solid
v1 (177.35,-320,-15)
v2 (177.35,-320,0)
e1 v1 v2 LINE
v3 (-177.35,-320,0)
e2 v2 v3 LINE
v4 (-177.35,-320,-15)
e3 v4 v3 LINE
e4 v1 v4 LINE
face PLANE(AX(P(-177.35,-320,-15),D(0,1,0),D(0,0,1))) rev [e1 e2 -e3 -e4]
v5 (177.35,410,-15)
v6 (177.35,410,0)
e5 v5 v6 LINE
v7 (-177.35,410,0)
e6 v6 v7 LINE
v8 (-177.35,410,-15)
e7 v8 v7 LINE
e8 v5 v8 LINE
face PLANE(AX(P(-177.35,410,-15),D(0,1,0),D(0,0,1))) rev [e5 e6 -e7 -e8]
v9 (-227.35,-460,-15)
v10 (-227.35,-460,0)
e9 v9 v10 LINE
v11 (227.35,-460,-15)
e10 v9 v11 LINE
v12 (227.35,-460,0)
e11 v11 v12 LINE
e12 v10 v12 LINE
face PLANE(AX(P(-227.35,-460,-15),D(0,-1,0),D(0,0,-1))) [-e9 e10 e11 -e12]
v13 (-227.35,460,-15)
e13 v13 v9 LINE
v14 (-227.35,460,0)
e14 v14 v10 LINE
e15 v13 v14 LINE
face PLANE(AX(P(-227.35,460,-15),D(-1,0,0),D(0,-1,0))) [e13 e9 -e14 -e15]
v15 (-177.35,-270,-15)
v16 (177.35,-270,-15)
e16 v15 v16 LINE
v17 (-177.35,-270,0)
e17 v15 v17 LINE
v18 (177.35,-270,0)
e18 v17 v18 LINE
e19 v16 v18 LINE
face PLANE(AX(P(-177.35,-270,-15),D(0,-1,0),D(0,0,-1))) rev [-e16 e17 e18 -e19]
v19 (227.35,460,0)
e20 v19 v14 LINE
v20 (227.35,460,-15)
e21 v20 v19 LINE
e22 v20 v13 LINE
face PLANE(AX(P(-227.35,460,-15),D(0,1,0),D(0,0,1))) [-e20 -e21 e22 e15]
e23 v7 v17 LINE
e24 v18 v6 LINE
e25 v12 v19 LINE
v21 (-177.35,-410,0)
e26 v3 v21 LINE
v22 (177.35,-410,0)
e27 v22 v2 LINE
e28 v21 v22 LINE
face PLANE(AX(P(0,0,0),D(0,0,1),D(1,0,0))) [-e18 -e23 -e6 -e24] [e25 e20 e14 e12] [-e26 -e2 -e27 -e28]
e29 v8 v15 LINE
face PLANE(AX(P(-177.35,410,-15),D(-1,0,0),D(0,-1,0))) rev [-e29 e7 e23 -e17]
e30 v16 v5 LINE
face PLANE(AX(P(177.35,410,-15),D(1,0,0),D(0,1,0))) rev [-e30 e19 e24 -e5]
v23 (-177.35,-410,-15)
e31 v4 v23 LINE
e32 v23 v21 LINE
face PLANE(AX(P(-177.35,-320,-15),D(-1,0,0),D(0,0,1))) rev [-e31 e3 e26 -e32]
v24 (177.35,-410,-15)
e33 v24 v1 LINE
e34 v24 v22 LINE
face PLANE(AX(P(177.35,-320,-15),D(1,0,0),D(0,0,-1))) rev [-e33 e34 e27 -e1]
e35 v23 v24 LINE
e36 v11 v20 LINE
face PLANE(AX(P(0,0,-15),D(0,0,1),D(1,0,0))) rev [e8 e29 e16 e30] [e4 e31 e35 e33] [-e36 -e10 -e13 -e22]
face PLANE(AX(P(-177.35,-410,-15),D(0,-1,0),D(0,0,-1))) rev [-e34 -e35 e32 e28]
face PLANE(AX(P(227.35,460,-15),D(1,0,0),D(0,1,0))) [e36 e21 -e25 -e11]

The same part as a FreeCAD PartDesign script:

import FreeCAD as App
import Part
import Sketcher

V = App.Vector
Q = App.Units.Quantity

doc = App.newDocument("Part")
body = doc.addObject("PartDesign::Body", "Body")

# Sketch on XY plane
sketch1 = body.newObject("Sketcher::SketchObject", "Sketch")
sketch1.AttachmentSupport = (doc.getObject("XY_Plane"), [""])
sketch1.MapMode = "FlatFace"
sketch1.addGeometry(Part.LineSegment(V(-227, 460, 0), V(-227, -460, 0)), False)
sketch1.addGeometry(Part.LineSegment(V(-227, -460, 0), V(227, -460, 0)), False)
sketch1.addGeometry(Part.LineSegment(V(227, -460, 0), V(227, 460, 0)), False)
sketch1.addGeometry(Part.LineSegment(V(227, 460, 0), V(-227, 460, 0)), False)
sketch1.addGeometry(Part.LineSegment(V(177, -270, 0), V(-177, -270, 0)), False)
sketch1.addGeometry(Part.LineSegment(V(-177, -270, 0), V(-177, 410, 0)), False)
sketch1.addGeometry(Part.LineSegment(V(-177, 410, 0), V(177, 410, 0)), False)
sketch1.addGeometry(Part.LineSegment(V(177, 410, 0), V(177, -270, 0)), False)
sketch1.addConstraint(Sketcher.Constraint("Coincident", 0, 2, 1, 1))
sketch1.addConstraint(Sketcher.Constraint("Coincident", 1, 2, 2, 1))
sketch1.addConstraint(Sketcher.Constraint("Coincident", 2, 2, 3, 1))
sketch1.addConstraint(Sketcher.Constraint("Coincident", 3, 2, 0, 1))
sketch1.addConstraint(Sketcher.Constraint("Coincident", 4, 2, 5, 1))
sketch1.addConstraint(Sketcher.Constraint("Coincident", 5, 2, 6, 1))
sketch1.addConstraint(Sketcher.Constraint("Coincident", 6, 2, 7, 1))
sketch1.addConstraint(Sketcher.Constraint("Coincident", 7, 2, 4, 1))
sketch1.addConstraint(Sketcher.Constraint("Vertical", 0))
sketch1.addConstraint(Sketcher.Constraint("Horizontal", 1))
sketch1.addConstraint(Sketcher.Constraint("Vertical", 2))
sketch1.addConstraint(Sketcher.Constraint("Horizontal", 3))
sketch1.addConstraint(Sketcher.Constraint("Horizontal", 4))
sketch1.addConstraint(Sketcher.Constraint("Vertical", 5))
sketch1.addConstraint(Sketcher.Constraint("Horizontal", 6))
sketch1.addConstraint(Sketcher.Constraint("Vertical", 7))
sketch1.addConstraint(Sketcher.Constraint("Symmetric", 0, 2, 2, 2, -1, 1))
sketch1.addConstraint(Sketcher.Constraint("DistanceY", 0, 2, 0, 1, Q("920 mm")))
sketch1.addConstraint(Sketcher.Constraint("DistanceY", 5, 1, 5, 2, Q("680 mm")))
sketch1.addConstraint(Sketcher.Constraint("DistanceX", 1, 1, 1, 2, Q("454.7 mm")))
sketch1.addConstraint(Sketcher.Constraint("DistanceX", 4, 2, 4, 1, Q("354.7 mm")))
sketch1.addConstraint(Sketcher.Constraint("DistanceY", 4, 2, -1, 1, Q("270 mm")))
sketch1.addConstraint(Sketcher.Constraint("DistanceX", 0, 2, 4, 2, Q("50 mm")))
pad1 = body.newObject("PartDesign::Pad", "Pad")
pad1.Profile = sketch1
pad1.Length = 15
pad1.Reversed = True

# Sketch on XY plane
sketch2 = body.newObject("Sketcher::SketchObject", "Sketch001")
sketch2.AttachmentSupport = (doc.getObject("XY_Plane"), [""])
sketch2.MapMode = "FlatFace"
sketch2.addGeometry(Part.LineSegment(V(-177, -320, 0), V(-177, -410, 0)), False)
sketch2.addGeometry(Part.LineSegment(V(-177, -410, 0), V(177, -410, 0)), False)
sketch2.addGeometry(Part.LineSegment(V(177, -410, 0), V(177, -320, 0)), False)
sketch2.addGeometry(Part.LineSegment(V(177, -320, 0), V(-177, -320, 0)), False)
sketch2.addConstraint(Sketcher.Constraint("Coincident", 0, 2, 1, 1))
sketch2.addConstraint(Sketcher.Constraint("Coincident", 1, 2, 2, 1))
sketch2.addConstraint(Sketcher.Constraint("Coincident", 2, 2, 3, 1))
sketch2.addConstraint(Sketcher.Constraint("Coincident", 3, 2, 0, 1))
sketch2.addConstraint(Sketcher.Constraint("Vertical", 0))
sketch2.addConstraint(Sketcher.Constraint("Horizontal", 1))
sketch2.addConstraint(Sketcher.Constraint("Vertical", 2))
sketch2.addConstraint(Sketcher.Constraint("Horizontal", 3))
sketch2.addConstraint(Sketcher.Constraint("DistanceY", 0, 2, 0, 1, Q("90 mm")))
sketch2.addConstraint(Sketcher.Constraint("DistanceX", 1, 1, 1, 2, Q("354.7 mm")))
sketch2.addConstraint(Sketcher.Constraint("DistanceY", 0, 2, -1, 1, Q("410 mm")))
sketch2.addConstraint(Sketcher.Constraint("DistanceX", 0, 2, -1, 1, Q("177.35 mm")))
pocket1 = body.newObject("PartDesign::Pocket", "Pocket")
pocket1.Profile = sketch2
pocket1.Length = 15

doc.recompute()
